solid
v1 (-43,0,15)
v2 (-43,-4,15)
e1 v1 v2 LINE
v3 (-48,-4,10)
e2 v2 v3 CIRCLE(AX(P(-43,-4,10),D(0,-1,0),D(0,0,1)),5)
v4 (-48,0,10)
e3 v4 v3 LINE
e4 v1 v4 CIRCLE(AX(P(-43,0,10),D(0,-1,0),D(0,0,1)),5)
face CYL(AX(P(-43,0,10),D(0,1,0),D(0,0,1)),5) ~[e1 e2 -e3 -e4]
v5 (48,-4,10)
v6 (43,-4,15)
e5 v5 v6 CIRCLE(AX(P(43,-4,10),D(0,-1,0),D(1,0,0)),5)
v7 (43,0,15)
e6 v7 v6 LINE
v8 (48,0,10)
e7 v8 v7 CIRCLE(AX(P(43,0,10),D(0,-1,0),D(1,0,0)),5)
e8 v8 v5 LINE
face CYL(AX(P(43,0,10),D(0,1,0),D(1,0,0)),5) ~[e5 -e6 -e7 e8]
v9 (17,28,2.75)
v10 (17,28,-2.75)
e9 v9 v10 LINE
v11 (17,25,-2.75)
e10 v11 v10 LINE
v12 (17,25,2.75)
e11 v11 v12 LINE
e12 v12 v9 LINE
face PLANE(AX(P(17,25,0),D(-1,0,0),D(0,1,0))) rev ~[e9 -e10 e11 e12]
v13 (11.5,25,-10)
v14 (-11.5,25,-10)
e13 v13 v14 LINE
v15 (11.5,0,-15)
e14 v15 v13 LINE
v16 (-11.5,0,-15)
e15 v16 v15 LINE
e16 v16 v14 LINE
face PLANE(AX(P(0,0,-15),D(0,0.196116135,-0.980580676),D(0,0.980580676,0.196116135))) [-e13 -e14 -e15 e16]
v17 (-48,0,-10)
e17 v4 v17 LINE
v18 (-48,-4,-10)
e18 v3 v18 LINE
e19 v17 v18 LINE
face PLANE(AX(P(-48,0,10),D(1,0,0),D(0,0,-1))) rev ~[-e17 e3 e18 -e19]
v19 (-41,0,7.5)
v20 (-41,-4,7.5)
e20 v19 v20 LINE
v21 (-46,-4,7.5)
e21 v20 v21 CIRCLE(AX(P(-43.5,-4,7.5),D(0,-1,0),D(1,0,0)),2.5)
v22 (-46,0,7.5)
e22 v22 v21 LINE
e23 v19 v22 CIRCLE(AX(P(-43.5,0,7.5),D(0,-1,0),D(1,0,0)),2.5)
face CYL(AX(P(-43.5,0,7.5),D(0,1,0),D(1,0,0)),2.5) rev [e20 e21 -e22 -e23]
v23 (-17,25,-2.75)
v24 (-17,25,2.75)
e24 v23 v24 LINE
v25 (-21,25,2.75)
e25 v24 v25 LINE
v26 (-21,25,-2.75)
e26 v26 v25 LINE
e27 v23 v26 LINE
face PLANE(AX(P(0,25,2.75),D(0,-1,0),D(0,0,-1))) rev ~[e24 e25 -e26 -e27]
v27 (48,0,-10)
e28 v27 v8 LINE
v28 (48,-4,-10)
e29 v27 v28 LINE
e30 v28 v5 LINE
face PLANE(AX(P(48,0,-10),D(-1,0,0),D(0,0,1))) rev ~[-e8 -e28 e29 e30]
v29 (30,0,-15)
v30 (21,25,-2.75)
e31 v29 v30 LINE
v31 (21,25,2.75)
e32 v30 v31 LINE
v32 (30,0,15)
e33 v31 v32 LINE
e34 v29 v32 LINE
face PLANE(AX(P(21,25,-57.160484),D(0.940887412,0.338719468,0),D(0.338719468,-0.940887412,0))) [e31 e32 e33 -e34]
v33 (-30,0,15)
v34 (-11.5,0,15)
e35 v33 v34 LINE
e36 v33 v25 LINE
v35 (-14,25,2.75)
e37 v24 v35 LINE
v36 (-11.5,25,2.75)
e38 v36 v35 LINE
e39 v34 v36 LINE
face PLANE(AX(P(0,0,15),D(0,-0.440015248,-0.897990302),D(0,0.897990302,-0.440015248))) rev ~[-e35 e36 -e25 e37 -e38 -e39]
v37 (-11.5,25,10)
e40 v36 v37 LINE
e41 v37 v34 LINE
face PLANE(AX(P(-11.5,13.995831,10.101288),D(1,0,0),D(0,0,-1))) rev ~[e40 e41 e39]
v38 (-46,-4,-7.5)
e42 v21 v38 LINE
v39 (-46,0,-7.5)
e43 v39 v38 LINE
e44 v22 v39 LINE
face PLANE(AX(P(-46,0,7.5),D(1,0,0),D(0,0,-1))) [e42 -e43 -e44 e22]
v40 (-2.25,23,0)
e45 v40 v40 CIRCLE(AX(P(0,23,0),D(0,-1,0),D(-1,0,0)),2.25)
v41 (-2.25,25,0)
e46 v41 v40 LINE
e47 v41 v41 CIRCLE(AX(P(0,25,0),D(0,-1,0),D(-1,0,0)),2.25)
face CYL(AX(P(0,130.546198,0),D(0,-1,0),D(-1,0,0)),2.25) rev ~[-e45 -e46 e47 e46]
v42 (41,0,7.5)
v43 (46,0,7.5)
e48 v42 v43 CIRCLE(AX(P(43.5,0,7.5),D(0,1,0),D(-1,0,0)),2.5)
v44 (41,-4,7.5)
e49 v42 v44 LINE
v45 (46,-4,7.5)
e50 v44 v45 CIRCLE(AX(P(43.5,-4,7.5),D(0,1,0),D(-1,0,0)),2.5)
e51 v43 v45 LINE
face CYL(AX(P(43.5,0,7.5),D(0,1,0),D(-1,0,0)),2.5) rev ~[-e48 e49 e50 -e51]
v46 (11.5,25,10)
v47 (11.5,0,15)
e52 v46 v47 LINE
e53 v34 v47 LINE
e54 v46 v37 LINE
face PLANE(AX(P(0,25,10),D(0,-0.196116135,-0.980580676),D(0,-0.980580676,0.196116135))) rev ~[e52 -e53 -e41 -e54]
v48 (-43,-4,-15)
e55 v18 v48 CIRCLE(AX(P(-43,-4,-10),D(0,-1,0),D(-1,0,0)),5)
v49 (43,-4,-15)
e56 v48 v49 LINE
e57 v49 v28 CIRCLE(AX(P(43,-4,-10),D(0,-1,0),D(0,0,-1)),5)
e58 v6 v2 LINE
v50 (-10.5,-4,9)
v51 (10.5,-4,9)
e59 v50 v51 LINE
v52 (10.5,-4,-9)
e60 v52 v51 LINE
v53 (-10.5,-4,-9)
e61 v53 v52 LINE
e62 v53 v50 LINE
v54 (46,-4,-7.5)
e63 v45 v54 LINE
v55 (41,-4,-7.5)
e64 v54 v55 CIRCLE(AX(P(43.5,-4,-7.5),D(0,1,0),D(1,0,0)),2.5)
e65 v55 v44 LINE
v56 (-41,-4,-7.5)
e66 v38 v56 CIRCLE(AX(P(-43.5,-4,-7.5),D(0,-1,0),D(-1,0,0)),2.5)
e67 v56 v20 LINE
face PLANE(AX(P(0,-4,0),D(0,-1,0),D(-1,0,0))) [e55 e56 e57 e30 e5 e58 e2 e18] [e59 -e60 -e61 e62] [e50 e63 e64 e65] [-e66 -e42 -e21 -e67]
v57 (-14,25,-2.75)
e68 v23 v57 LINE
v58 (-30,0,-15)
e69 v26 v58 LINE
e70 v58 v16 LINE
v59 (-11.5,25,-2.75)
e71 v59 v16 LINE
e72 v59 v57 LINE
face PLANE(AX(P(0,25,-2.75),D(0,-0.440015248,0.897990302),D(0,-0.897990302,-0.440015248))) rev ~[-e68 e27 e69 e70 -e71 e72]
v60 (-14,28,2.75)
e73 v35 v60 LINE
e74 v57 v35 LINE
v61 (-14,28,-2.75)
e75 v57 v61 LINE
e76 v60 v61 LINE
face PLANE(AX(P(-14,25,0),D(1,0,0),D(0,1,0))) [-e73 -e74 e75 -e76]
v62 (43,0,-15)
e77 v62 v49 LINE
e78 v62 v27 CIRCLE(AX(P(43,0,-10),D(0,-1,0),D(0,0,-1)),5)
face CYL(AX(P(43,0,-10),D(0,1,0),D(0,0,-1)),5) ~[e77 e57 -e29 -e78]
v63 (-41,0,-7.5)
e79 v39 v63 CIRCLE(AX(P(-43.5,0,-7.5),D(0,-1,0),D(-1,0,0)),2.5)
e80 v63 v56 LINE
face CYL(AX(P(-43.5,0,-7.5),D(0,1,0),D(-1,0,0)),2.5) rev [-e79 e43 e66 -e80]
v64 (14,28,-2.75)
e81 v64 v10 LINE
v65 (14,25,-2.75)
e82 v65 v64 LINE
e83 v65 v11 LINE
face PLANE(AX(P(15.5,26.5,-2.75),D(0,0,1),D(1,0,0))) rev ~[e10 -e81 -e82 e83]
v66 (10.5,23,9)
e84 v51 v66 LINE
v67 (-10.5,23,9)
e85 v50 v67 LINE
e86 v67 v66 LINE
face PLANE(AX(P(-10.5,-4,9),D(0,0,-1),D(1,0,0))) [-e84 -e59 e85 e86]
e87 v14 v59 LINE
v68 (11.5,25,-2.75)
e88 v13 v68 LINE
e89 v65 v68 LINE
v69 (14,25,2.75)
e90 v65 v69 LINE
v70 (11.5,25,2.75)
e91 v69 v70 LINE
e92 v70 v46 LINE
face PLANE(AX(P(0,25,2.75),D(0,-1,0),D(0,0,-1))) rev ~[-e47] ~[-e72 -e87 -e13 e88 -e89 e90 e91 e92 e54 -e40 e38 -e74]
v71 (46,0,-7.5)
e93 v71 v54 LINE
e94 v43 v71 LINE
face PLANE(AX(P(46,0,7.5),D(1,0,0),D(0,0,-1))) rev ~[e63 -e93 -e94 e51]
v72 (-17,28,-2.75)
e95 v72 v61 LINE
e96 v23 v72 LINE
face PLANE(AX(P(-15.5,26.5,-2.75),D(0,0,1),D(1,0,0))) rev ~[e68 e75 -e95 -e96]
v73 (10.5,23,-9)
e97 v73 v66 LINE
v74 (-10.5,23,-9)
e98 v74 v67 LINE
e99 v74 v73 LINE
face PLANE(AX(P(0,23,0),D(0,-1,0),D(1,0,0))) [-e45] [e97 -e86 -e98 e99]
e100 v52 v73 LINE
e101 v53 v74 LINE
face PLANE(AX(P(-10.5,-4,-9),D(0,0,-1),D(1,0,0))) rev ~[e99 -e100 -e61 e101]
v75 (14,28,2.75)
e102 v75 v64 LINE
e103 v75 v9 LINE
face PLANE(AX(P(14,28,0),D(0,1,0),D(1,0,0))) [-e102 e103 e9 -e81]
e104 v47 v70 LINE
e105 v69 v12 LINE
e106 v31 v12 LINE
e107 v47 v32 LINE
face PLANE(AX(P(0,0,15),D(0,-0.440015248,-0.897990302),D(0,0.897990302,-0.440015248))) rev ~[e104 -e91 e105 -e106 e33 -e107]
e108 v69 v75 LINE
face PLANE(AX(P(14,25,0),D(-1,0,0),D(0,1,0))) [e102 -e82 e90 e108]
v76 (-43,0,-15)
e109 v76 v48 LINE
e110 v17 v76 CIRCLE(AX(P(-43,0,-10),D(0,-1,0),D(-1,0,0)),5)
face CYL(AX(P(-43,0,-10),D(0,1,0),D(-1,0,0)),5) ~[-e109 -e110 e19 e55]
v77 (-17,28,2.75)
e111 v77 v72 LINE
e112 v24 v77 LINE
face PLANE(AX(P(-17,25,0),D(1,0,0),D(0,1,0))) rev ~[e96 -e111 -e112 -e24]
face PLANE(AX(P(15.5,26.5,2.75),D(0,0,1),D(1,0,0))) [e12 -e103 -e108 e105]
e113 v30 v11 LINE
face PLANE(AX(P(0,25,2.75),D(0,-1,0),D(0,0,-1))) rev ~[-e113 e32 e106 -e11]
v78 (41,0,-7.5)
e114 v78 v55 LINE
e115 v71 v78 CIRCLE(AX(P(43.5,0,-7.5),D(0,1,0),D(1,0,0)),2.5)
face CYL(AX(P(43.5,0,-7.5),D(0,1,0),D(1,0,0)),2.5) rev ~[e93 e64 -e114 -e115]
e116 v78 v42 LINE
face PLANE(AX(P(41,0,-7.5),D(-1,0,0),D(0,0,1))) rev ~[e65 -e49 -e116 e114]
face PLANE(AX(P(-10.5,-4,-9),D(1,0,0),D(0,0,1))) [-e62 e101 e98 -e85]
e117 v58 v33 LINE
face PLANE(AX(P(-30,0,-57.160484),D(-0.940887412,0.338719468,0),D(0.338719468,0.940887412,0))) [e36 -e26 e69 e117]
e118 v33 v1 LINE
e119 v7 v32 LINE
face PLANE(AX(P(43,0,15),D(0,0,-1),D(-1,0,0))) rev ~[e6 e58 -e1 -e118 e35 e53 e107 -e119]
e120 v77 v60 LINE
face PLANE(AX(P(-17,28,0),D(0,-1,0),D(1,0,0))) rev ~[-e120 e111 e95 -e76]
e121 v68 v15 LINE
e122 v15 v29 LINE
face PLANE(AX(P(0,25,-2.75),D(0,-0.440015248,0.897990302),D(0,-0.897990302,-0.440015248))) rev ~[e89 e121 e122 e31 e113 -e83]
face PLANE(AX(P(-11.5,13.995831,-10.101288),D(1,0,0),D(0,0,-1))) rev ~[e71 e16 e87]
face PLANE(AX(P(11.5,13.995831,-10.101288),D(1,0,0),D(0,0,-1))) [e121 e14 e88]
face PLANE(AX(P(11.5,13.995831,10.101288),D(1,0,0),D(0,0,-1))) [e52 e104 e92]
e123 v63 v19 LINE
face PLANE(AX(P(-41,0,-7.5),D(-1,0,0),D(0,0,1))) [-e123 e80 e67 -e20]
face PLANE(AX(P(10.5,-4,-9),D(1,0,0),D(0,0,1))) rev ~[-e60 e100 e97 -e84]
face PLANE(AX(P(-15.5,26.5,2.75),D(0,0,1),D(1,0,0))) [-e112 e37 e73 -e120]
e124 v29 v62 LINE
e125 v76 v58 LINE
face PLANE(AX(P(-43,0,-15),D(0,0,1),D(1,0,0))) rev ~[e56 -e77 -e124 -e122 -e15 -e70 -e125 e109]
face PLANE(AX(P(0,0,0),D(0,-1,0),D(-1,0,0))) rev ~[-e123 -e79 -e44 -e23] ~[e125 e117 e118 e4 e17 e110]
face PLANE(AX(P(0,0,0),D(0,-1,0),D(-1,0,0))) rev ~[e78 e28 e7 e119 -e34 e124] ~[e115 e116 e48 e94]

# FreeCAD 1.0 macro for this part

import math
import FreeCAD as App
import Part
import Sketcher

doc = App.newDocument("Part")
body = doc.addObject("PartDesign::Body", "Body")

# Sketch on XZ plane
sketch1 = doc.addObject("Sketcher::SketchObject", "Sketch")
body.addObject(sketch1)
sketch1.AttachmentSupport = (doc.XZ_Plane, [""])
sketch1.MapMode = "FlatFace"
sketch1.addGeometry(Part.LineSegment(App.Vector(43, -15, 0), App.Vector(-43, -15, 0)), False)
sketch1.addGeometry(Part.ArcOfCircle(Part.Circle(App.Vector(-43, -10, 0), App.Vector(0, 0, 1), 5), math.radians(180), math.radians(270)), False)
sketch1.addGeometry(Part.LineSegment(App.Vector(-48, -10, 0), App.Vector(-48, 10, 0)), False)
sketch1.addGeometry(Part.ArcOfCircle(Part.Circle(App.Vector(-43, 10, 0), App.Vector(0, 0, 1), 5), math.radians(90), math.radians(180)), False)
sketch1.addGeometry(Part.LineSegment(App.Vector(-43, 15, 0), App.Vector(43, 15, 0)), False)
sketch1.addGeometry(Part.ArcOfCircle(Part.Circle(App.Vector(43, 10, 0), App.Vector(0, 0, 1), 5), math.radians(0), math.radians(90)), False)
sketch1.addGeometry(Part.LineSegment(App.Vector(48, 10, 0), App.Vector(48, -10, 0)), False)
sketch1.addGeometry(Part.ArcOfCircle(Part.Circle(App.Vector(43, -10, 0), App.Vector(0, 0, 1), 5), math.radians(-90), math.radians(0)), False)
sketch1.addGeometry(Part.ArcOfCircle(Part.Circle(App.Vector(43.5, 7.5, 0), App.Vector(0, 0, 1), 2.5), math.radians(0), math.radians(180)), False)
sketch1.addGeometry(Part.LineSegment(App.Vector(41, 7.5, 0), App.Vector(41, -7.5, 0)), False)
sketch1.addGeometry(Part.ArcOfCircle(Part.Circle(App.Vector(43.5, -7.5, 0), App.Vector(0, 0, 1), 2.5), math.radians(180), math.radians(360)), False)
sketch1.addGeometry(Part.LineSegment(App.Vector(46, -7.5, 0), App.Vector(46, 7.5, 0)), False)
sketch1.addGeometry(Part.LineSegment(App.Vector(-46, 7.5, 0), App.Vector(-46, -7.5, 0)), False)
sketch1.addGeometry(Part.ArcOfCircle(Part.Circle(App.Vector(-43.5, -7.5, 0), App.Vector(0, 0, 1), 2.5), math.radians(180), math.radians(360)), False)
sketch1.addGeometry(Part.LineSegment(App.Vector(-41, -7.5, 0), App.Vector(-41, 7.5, 0)), False)
sketch1.addGeometry(Part.ArcOfCircle(Part.Circle(App.Vector(-43.5, 7.5, 0), App.Vector(0, 0, 1), 2.5), math.radians(0), math.radians(180)), False)
sketch1.addConstraint(Sketcher.Constraint("Tangent", 0, 2, 1, 2))
sketch1.addConstraint(Sketcher.Constraint("Tangent", 1, 1, 2, 1))
sketch1.addConstraint(Sketcher.Constraint("Tangent", 2, 2, 3, 2))
sketch1.addConstraint(Sketcher.Constraint("Tangent", 3, 1, 4, 1))
sketch1.addConstraint(Sketcher.Constraint("Tangent", 4, 2, 5, 2))
sketch1.addConstraint(Sketcher.Constraint("Tangent", 5, 1, 6, 1))
sketch1.addConstraint(Sketcher.Constraint("Tangent", 6, 2, 7, 2))
sketch1.addConstraint(Sketcher.Constraint("Tangent", 7, 1, 0, 1))
sketch1.addConstraint(Sketcher.Constraint("Tangent", 8, 2, 9, 1))
sketch1.addConstraint(Sketcher.Constraint("Tangent", 9, 2, 10, 1))
sketch1.addConstraint(Sketcher.Constraint("Tangent", 10, 2, 11, 1))
sketch1.addConstraint(Sketcher.Constraint("Tangent", 11, 2, 8, 1))
sketch1.addConstraint(Sketcher.Constraint("Tangent", 12, 2, 13, 1))
sketch1.addConstraint(Sketcher.Constraint("Tangent", 13, 2, 14, 1))
sketch1.addConstraint(Sketcher.Constraint("Tangent", 14, 2, 15, 1))
sketch1.addConstraint(Sketcher.Constraint("Tangent", 15, 2, 12, 1))
sketch1.addConstraint(Sketcher.Constraint("Horizontal", 0))
sketch1.addConstraint(Sketcher.Constraint("Vertical", 2))
sketch1.addConstraint(Sketcher.Constraint("Horizontal", 4))
sketch1.addConstraint(Sketcher.Constraint("Vertical", 6))
sketch1.addConstraint(Sketcher.Constraint("Vertical", 9))
sketch1.addConstraint(Sketcher.Constraint("Vertical", 11))
sketch1.addConstraint(Sketcher.Constraint("Vertical", 12))
sketch1.addConstraint(Sketcher.Constraint("Vertical", 14))
sketch1.addConstraint(Sketcher.Constraint("Equal", 1, 3))
sketch1.addConstraint(Sketcher.Constraint("Equal", 3, 5))
sketch1.addConstraint(Sketcher.Constraint("Equal", 5, 7))
sketch1.addConstraint(Sketcher.Constraint("Equal", 10, 13))
sketch1.addConstraint(Sketcher.Constraint("Symmetric", 1, 3, 5, 3, -1, 1))
sketch1.addConstraint(Sketcher.Constraint("Symmetric", 8, 3, 13, 3, -1, 1))
sketch1.addConstraint(Sketcher.Constraint("Horizontal", 10, 3, 13, 3))
sketch1.addConstraint(Sketcher.Constraint("Horizontal", 8, 3, 15, 3))
sketch1.addConstraint(Sketcher.Constraint("Radius", 1, 5.0))
sketch1.addConstraint(Sketcher.Constraint("Radius", 8, 2.5))
sketch1.addConstraint(Sketcher.Constraint("DistanceX", 0, 2, 0, 1, 86.0))
sketch1.addConstraint(Sketcher.Constraint("DistanceY", 2, 1, 2, 2, 20.0))
sketch1.addConstraint(Sketcher.Constraint("DistanceY", 9, 2, 9, 1, 15.0))
sketch1.addConstraint(Sketcher.Constraint("DistanceX", -1, 1, 8, 2, 41.0))
pad1 = doc.addObject("PartDesign::Pad", "Pad")
body.addObject(pad1)
pad1.Profile = sketch1
pad1.Length = 4

# Sketch on YZ plane
sketch2 = doc.addObject("Sketcher::SketchObject", "Sketch001")
body.addObject(sketch2)
sketch2.AttachmentSupport = (doc.YZ_Plane, [""])
sketch2.MapMode = "FlatFace"
sketch2.addGeometry(Part.LineSegment(App.Vector(25, 3, 0), App.Vector(0, 15, 0)), False)
sketch2.addGeometry(Part.LineSegment(App.Vector(0, 15, 0), App.Vector(0, -15, 0)), False)
sketch2.addGeometry(Part.LineSegment(App.Vector(0, -15, 0), App.Vector(25, -3, 0)), False)
sketch2.addGeometry(Part.LineSegment(App.Vector(25, -3, 0), App.Vector(25, 3, 0)), False)
sketch2.addConstraint(Sketcher.Constraint("Coincident", 0, 2, 1, 1))
sketch2.addConstraint(Sketcher.Constraint("Coincident", 1, 2, 2, 1))
sketch2.addConstraint(Sketcher.Constraint("Coincident", 2, 2, 3, 1))
sketch2.addConstraint(Sketcher.Constraint("Coincident", 3, 2, 0, 1))
sketch2.addConstraint(Sketcher.Constraint("Vertical", 1))
sketch2.addConstraint(Sketcher.Constraint("Vertical", 3))
sketch2.addConstraint(Sketcher.Constraint("Symmetric", 0, 2, 1, 2, -1, 1))
sketch2.addConstraint(Sketcher.Constraint("Equal", 0, 2))
sketch2.addConstraint(Sketcher.Constraint("DistanceY", 1, 2, 1, 1, 30.0))
sketch2.addConstraint(Sketcher.Constraint("DistanceY", 3, 1, 3, 2, 5.5))
sketch2.addConstraint(Sketcher.Constraint("DistanceX", -1, 1, 2, 2, 25.0))
pad2 = doc.addObject("PartDesign::Pad", "Pad001")
body.addObject(pad2)
pad2.Profile = sketch2
pad2.Length = 60
pad2.Midplane = True

# Sketch on YZ plane
sketch3 = doc.addObject("Sketcher::SketchObject", "Sketch002")
body.addObject(sketch3)
sketch3.AttachmentSupport = (doc.YZ_Plane, [""])
sketch3.MapMode = "FlatFace"
sketch3.addGeometry(Part.LineSegment(App.Vector(25, 10, 0), App.Vector(0, 15, 0)), False)
sketch3.addGeometry(Part.LineSegment(App.Vector(0, 15, 0), App.Vector(25, 3, 0)), False)
sketch3.addGeometry(Part.LineSegment(App.Vector(25, 3, 0), App.Vector(25, 10, 0)), False)
sketch3.addGeometry(Part.LineSegment(App.Vector(25, -3, 0), App.Vector(0, -15, 0)), False)
sketch3.addGeometry(Part.LineSegment(App.Vector(0, -15, 0), App.Vector(25, -10, 0)), False)
sketch3.addGeometry(Part.LineSegment(App.Vector(25, -10, 0), App.Vector(25, -3, 0)), False)
sketch3.addConstraint(Sketcher.Constraint("Coincident", 0, 2, 1, 1))
sketch3.addConstraint(Sketcher.Constraint("Coincident", 1, 2, 2, 1))
sketch3.addConstraint(Sketcher.Constraint("Coincident", 2, 2, 0, 1))
sketch3.addConstraint(Sketcher.Constraint("Coincident", 3, 2, 4, 1))
sketch3.addConstraint(Sketcher.Constraint("Coincident", 4, 2, 5, 1))
sketch3.addConstraint(Sketcher.Constraint("Coincident", 5, 2, 3, 1))
sketch3.addConstraint(Sketcher.Constraint("Vertical", 2))
sketch3.addConstraint(Sketcher.Constraint("Vertical", 5))
sketch3.addConstraint(Sketcher.Constraint("Symmetric", 0, 2, 3, 2, -1, 1))
sketch3.addConstraint(Sketcher.Constraint("Symmetric", 2, 2, 4, 2, -1))
sketch3.addConstraint(Sketcher.Constraint("PointOnObject", 0, 2, -2))
sketch3.addConstraint(Sketcher.Constraint("Equal", 2, 5))
sketch3.addConstraint(Sketcher.Constraint("DistanceY", -1, 1, 0, 2, 15.0))
sketch3.addConstraint(Sketcher.Constraint("DistanceX", -1, 1, 1, 2, 25.0))
sketch3.addConstraint(Sketcher.Constraint("DistanceY", -1, 1, 2, 2, 10.0))
sketch3.addConstraint(Sketcher.Constraint("DistanceY", 2, 1, 2, 2, 7.25))
pad3 = doc.addObject("PartDesign::Pad", "Pad002")
body.addObject(pad3)
pad3.Profile = sketch3
pad3.Length = 23
pad3.Midplane = True

# Sketch on XY plane
sketch4 = doc.addObject("Sketcher::SketchObject", "Sketch003")
body.addObject(sketch4)
sketch4.AttachmentSupport = (doc.XY_Plane, [""])
sketch4.MapMode = "FlatFace"
sketch4.addGeometry(Part.LineSegment(App.Vector(21, 25, 0), App.Vector(30, 0, 0)), False)
sketch4.addGeometry(Part.LineSegment(App.Vector(30, 0, 0), App.Vector(30, 25, 0)), False)
sketch4.addGeometry(Part.LineSegment(App.Vector(30, 25, 0), App.Vector(21, 25, 0)), False)
sketch4.addGeometry(Part.LineSegment(App.Vector(-30, 25, 0), App.Vector(-30, 0, 0)), False)
sketch4.addGeometry(Part.LineSegment(App.Vector(-30, 0, 0), App.Vector(-21, 25, 0)), False)
sketch4.addGeometry(Part.LineSegment(App.Vector(-21, 25, 0), App.Vector(-30, 25, 0)), False)
sketch4.addConstraint(Sketcher.Constraint("Coincident", 0, 2, 1, 1))
sketch4.addConstraint(Sketcher.Constraint("Coincident", 1, 2, 2, 1))
sketch4.addConstraint(Sketcher.Constraint("Coincident", 2, 2, 0, 1))
sketch4.addConstraint(Sketcher.Constraint("Coincident", 3, 2, 4, 1))
sketch4.addConstraint(Sketcher.Constraint("Coincident", 4, 2, 5, 1))
sketch4.addConstraint(Sketcher.Constraint("Coincident", 5, 2, 3, 1))
sketch4.addConstraint(Sketcher.Constraint("Vertical", 1))
sketch4.addConstraint(Sketcher.Constraint("Horizontal", 2))
sketch4.addConstraint(Sketcher.Constraint("Vertical", 3))
sketch4.addConstraint(Sketcher.Constraint("Horizontal", 5))
sketch4.addConstraint(Sketcher.Constraint("Symmetric", 0, 2, 3, 2, -1, 1))
sketch4.addConstraint(Sketcher.Constraint("Symmetric", 2, 2, 4, 2, -2))
sketch4.addConstraint(Sketcher.Constraint("PointOnObject", 0, 2, -1))
sketch4.addConstraint(Sketcher.Constraint("DistanceX", 2, 2, 2, 1, 9.0))
sketch4.addConstraint(Sketcher.Constraint("DistanceY", 1, 1, 1, 2, 25.0))
sketch4.addConstraint(Sketcher.Constraint("DistanceX", -1, 1, 0, 2, 30.0))
pocket1 = doc.addObject("PartDesign::Pocket", "Pocket")
body.addObject(pocket1)
pocket1.Profile = sketch4
pocket1.Type = "ThroughAll"
pocket1.Midplane = True

# Sketch on XY plane
sketch5 = doc.addObject("Sketcher::SketchObject", "Sketch004")
body.addObject(sketch5)
sketch5.AttachmentSupport = (doc.XY_Plane, [""])
sketch5.MapMode = "FlatFace"
sketch5.addGeometry(Part.LineSegment(App.Vector(14, 28, 0), App.Vector(14, 25, 0)), False)
sketch5.addGeometry(Part.LineSegment(App.Vector(14, 25, 0), App.Vector(17, 25, 0)), False)
sketch5.addGeometry(Part.LineSegment(App.Vector(17, 25, 0), App.Vector(17, 28, 0)), False)
sketch5.addGeometry(Part.LineSegment(App.Vector(17, 28, 0), App.Vector(14, 28, 0)), False)
sketch5.addGeometry(Part.LineSegment(App.Vector(-17, 28, 0), App.Vector(-17, 25, 0)), False)
sketch5.addGeometry(Part.LineSegment(App.Vector(-17, 25, 0), App.Vector(-14, 25, 0)), False)
sketch5.addGeometry(Part.LineSegment(App.Vector(-14, 25, 0), App.Vector(-14, 28, 0)), False)
sketch5.addGeometry(Part.LineSegment(App.Vector(-14, 28, 0), App.Vector(-17, 28, 0)), False)
sketch5.addConstraint(Sketcher.Constraint("Coincident", 0, 2, 1, 1))
sketch5.addConstraint(Sketcher.Constraint("Coincident", 1, 2, 2, 1))
sketch5.addConstraint(Sketcher.Constraint("Coincident", 2, 2, 3, 1))
sketch5.addConstraint(Sketcher.Constraint("Coincident", 3, 2, 0, 1))
sketch5.addConstraint(Sketcher.Constraint("Coincident", 4, 2, 5, 1))
sketch5.addConstraint(Sketcher.Constraint("Coincident", 5, 2, 6, 1))
sketch5.addConstraint(Sketcher.Constraint("Coincident", 6, 2, 7, 1))
sketch5.addConstraint(Sketcher.Constraint("Coincident", 7, 2, 4, 1))
sketch5.addConstraint(Sketcher.Constraint("Vertical", 0))
sketch5.addConstraint(Sketcher.Constraint("Horizontal", 1))
sketch5.addConstraint(Sketcher.Constraint("Vertical", 2))
sketch5.addConstraint(Sketcher.Constraint("Horizontal", 3))
sketch5.addConstraint(Sketcher.Constraint("Vertical", 4))
sketch5.addConstraint(Sketcher.Constraint("Horizontal", 5))
sketch5.addConstraint(Sketcher.Constraint("Vertical", 6))
sketch5.addConstraint(Sketcher.Constraint("Horizontal", 7))
sketch5.addConstraint(Sketcher.Constraint("Symmetric", 1, 2, 4, 2, -2))
sketch5.addConstraint(Sketcher.Constraint("Symmetric", 3, 2, 6, 2, -2))
sketch5.addConstraint(Sketcher.Constraint("Equal", 7, 0))
sketch5.addConstraint(Sketcher.Constraint("DistanceX", 1, 1, 1, 2, 3.0))
sketch5.addConstraint(Sketcher.Constraint("DistanceX", -1, 1, 0, 2, 14.0))
sketch5.addConstraint(Sketcher.Constraint("DistanceY", -1, 1, 0, 2, 25.0))
pad4 = doc.addObject("PartDesign::Pad", "Pad003")
body.addObject(pad4)
pad4.Profile = sketch5
pad4.Length = 5.5
pad4.Midplane = True

# Sketch on XZ plane
sketch6 = doc.addObject("Sketcher::SketchObject", "Sketch005")
body.addObject(sketch6)
sketch6.AttachmentSupport = (doc.XZ_Plane, [""])
sketch6.MapMode = "FlatFace"
sketch6.AttachmentOffset = App.Placement(App.Vector(0, 0, 4), App.Rotation())
sketch6.addGeometry(Part.LineSegment(App.Vector(-10, 9, 0), App.Vector(-10, -9, 0)), False)
sketch6.addGeometry(Part.LineSegment(App.Vector(-10, -9, 0), App.Vector(10, -9, 0)), False)
sketch6.addGeometry(Part.LineSegment(App.Vector(10, -9, 0), App.Vector(10, 9, 0)), False)
sketch6.addGeometry(Part.LineSegment(App.Vector(10, 9, 0), App.Vector(-10, 9, 0)), False)
sketch6.addConstraint(Sketcher.Constraint("Coincident", 0, 2, 1, 1))
sketch6.addConstraint(Sketcher.Constraint("Coincident", 1, 2, 2, 1))
sketch6.addConstraint(Sketcher.Constraint("Coincident", 2, 2, 3, 1))
sketch6.addConstraint(Sketcher.Constraint("Coincident", 3, 2, 0, 1))
sketch6.addConstraint(Sketcher.Constraint("Vertical", 0))
sketch6.addConstraint(Sketcher.Constraint("Horizontal", 1))
sketch6.addConstraint(Sketcher.Constraint("Vertical", 2))
sketch6.addConstraint(Sketcher.Constraint("Horizontal", 3))
sketch6.addConstraint(Sketcher.Constraint("Symmetric", 0, 2, 2, 2, -1, 1))
sketch6.addConstraint(Sketcher.Constraint("DistanceX", 1, 1, 1, 2, 21.0))
sketch6.addConstraint(Sketcher.Constraint("DistanceY", 0, 2, 0, 1, 18.0))
pocket2 = doc.addObject("PartDesign::Pocket", "Pocket001")
body.addObject(pocket2)
pocket2.Profile = sketch6
pocket2.Length = 27

# Sketch on XZ plane
sketch7 = doc.addObject("Sketcher::SketchObject", "Sketch006")
body.addObject(sketch7)
sketch7.AttachmentSupport = (doc.XZ_Plane, [""])
sketch7.MapMode = "FlatFace"
sketch7.AttachmentOffset = App.Placement(App.Vector(0, 0, -25), App.Rotation())
sketch7.addGeometry(Part.Circle(App.Vector(0, 0, 0), App.Vector(0, 0, 1), 2.2), False)
sketch7.addConstraint(Sketcher.Constraint("Coincident", 0, 3, -1, 1))
sketch7.addConstraint(Sketcher.Constraint("Diameter", 0, 4.5))
doc.recompute()
hole = doc.addObject("PartDesign::Hole", "Hole")
body.addObject(hole)
hole.Profile = sketch7
hole.ThreadType = "None"
hole.Diameter = 4.5
hole.DepthType = "ThroughAll"
hole.Reversed = True

doc.recompute()
